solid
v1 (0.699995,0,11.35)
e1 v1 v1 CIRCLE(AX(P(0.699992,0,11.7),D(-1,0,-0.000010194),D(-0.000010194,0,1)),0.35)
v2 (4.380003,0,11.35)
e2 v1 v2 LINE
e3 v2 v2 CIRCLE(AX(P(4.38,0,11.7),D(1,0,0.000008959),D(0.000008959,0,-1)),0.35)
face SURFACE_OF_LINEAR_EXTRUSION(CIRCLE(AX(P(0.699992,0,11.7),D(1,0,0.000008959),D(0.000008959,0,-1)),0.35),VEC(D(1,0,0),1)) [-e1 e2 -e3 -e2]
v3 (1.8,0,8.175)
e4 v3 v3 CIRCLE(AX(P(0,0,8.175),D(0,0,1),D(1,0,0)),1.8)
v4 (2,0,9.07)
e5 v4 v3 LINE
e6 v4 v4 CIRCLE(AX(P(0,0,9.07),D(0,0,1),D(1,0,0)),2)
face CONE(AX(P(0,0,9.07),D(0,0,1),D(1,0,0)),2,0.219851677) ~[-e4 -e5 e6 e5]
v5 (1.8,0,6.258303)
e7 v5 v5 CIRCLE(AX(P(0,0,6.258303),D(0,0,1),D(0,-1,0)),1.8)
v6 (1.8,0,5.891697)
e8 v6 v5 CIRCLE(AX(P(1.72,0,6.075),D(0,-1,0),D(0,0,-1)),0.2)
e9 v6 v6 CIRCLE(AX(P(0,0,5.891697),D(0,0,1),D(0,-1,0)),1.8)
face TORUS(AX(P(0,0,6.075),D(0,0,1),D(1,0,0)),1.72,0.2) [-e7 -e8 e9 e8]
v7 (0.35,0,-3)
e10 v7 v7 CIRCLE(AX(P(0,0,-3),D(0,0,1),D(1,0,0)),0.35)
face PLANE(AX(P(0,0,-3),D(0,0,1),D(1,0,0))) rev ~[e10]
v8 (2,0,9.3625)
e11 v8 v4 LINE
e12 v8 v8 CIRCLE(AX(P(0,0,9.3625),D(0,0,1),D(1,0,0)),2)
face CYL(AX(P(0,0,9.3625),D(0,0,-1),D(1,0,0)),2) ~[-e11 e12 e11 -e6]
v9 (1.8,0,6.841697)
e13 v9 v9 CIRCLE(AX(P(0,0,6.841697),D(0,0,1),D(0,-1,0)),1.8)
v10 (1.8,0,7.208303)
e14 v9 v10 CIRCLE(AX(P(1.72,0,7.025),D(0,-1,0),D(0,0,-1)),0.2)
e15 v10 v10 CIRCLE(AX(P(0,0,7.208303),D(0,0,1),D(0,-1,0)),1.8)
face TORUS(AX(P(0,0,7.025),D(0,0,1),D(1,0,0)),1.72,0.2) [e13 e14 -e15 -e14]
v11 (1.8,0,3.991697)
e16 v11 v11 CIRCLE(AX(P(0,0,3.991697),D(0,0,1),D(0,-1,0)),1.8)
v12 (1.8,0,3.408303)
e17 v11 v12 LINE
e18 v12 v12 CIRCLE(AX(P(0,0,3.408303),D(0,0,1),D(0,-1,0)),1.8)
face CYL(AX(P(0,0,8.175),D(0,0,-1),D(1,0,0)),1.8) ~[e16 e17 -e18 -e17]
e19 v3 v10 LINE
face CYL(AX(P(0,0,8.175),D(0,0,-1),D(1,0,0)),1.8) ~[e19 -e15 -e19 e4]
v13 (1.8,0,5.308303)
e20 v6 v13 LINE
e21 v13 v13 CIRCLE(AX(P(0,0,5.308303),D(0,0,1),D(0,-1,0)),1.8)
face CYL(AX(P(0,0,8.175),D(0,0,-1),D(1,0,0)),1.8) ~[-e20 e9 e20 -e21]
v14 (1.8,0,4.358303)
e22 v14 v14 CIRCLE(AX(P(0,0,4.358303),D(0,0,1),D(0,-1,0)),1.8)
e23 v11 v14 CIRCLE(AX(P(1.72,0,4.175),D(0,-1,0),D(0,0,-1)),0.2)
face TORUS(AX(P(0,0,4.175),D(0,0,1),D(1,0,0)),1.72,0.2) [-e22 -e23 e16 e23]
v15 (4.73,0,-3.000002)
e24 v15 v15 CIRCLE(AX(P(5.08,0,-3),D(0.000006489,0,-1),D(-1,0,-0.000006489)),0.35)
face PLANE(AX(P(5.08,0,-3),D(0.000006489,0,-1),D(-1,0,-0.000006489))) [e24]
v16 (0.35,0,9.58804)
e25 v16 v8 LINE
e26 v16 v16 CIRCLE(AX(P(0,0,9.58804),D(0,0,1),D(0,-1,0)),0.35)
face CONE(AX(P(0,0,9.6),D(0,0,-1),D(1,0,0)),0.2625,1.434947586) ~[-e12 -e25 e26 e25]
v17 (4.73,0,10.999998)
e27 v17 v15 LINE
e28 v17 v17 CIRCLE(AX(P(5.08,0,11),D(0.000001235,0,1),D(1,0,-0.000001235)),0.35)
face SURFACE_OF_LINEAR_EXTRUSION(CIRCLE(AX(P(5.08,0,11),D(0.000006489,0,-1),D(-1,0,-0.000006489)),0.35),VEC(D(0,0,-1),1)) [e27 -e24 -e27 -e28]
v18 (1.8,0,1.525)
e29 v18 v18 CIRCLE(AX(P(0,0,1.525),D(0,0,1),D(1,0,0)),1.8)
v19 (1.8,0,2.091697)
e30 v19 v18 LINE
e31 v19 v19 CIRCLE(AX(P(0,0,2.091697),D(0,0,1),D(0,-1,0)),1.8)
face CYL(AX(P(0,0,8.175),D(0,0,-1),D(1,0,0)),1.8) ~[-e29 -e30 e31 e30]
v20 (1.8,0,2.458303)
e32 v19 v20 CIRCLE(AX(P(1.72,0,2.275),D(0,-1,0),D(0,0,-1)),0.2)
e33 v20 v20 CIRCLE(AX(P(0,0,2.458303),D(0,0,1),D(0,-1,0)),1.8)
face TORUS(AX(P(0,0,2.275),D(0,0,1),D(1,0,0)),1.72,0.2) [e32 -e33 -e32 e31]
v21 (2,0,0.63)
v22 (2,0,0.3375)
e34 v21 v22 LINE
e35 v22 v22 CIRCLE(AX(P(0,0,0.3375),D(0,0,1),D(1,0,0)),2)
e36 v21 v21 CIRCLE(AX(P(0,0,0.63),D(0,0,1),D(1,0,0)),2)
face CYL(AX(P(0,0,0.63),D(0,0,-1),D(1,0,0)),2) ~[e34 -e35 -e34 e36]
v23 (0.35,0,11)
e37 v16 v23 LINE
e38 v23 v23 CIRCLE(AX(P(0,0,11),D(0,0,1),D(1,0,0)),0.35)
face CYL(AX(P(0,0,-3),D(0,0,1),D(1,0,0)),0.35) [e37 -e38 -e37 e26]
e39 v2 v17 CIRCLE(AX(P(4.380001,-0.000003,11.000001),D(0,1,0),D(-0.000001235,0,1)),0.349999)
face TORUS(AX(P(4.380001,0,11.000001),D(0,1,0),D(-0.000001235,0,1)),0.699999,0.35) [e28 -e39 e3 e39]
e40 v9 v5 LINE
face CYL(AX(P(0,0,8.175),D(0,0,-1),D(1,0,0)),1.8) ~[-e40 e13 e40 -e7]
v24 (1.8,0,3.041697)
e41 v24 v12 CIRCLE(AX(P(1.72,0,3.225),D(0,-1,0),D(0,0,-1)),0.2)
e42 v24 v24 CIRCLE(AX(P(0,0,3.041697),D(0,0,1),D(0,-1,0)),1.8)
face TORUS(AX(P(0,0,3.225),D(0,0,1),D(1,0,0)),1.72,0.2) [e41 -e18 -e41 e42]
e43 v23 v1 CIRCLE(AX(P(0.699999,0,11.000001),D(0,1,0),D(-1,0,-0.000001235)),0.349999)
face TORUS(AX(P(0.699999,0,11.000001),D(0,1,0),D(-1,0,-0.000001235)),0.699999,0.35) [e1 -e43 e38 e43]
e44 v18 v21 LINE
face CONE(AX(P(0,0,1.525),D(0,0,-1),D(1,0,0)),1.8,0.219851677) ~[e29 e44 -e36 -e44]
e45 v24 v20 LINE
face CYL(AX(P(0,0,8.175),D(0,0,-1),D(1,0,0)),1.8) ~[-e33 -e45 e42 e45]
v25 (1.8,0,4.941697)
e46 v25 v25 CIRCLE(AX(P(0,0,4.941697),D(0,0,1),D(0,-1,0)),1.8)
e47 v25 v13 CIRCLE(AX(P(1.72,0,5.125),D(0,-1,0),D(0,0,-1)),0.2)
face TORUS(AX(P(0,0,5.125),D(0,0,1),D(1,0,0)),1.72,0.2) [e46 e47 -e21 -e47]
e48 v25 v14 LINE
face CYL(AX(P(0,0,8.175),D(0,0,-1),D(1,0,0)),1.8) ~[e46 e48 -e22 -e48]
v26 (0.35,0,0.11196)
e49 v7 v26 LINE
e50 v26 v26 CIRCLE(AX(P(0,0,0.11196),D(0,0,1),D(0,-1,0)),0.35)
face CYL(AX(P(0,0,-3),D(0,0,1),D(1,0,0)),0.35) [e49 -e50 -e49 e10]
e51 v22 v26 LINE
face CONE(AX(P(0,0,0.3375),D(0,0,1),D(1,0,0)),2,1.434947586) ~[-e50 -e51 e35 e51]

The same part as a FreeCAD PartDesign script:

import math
import FreeCAD as App
import Part
import Sketcher

V = App.Vector

doc = App.newDocument("Part")
params = doc.addObject("Spreadsheet::Sheet", "Params")
for row, (alias, value) in enumerate([
    ("sketch1_height", "9.5 mm"),
    ("sketch1_height2", "6.65 mm"),
    ("revolution_angle", "360 deg"),
    ("sketch2_radius", "0.2 mm"),
    ("sketch2_width", "0.12 mm"),
    ("sketch2_height", "6.25 mm"),
    ("revolution2_angle", "360 deg"),
    ("sketch3_diameter", "0.7 mm"),
    ("sketch4_radius", "0.699999 mm"),
    ("sketch4_height", "14 mm"),
], start=1):
    params.set(f"A{row}", alias)
    params.set(f"B{row}", "=" + value)
    params.setAlias(f"B{row}", alias)

body = doc.addObject("PartDesign::Body", "Body")

# Sketch on XZ plane
sketch1 = body.newObject("Sketcher::SketchObject", "Sketch")
sketch1.AttachmentSupport = (doc.getObject("XZ_Plane"), [""])
sketch1.MapMode = "FlatFace"
sketch1.addGeometry([
    Part.LineSegment(V(0, 9.6, 0), V(0, 0.1, 0)),  # 0
    Part.LineSegment(V(0, 0.1, 0), V(0.26, 0.1, 0)),  # 1
    Part.LineSegment(V(0.26, 0.1, 0), V(2, 0.34, 0)),  # 2
    Part.LineSegment(V(2, 0.34, 0), V(2, 0.63, 0)),  # 3
    Part.LineSegment(V(2, 0.63, 0), V(1.8, 1.52, 0)),  # 4
    Part.LineSegment(V(1.8, 1.52, 0), V(1.8, 8.18, 0)),  # 5
    Part.LineSegment(V(1.8, 8.18, 0), V(2, 9.07, 0)),  # 6
    Part.LineSegment(V(2, 9.07, 0), V(2, 9.36, 0)),  # 7
    Part.LineSegment(V(2, 9.36, 0), V(0.26, 9.6, 0)),  # 8
    Part.LineSegment(V(0.26, 9.6, 0), V(0, 9.6, 0)),  # 9
], False)
sketch1.addConstraint([
    Sketcher.Constraint("Coincident", 0, 2, 1, 1),
    Sketcher.Constraint("Coincident", 1, 2, 2, 1),
    Sketcher.Constraint("Coincident", 2, 2, 3, 1),
    Sketcher.Constraint("Coincident", 3, 2, 4, 1),
    Sketcher.Constraint("Coincident", 4, 2, 5, 1),
    Sketcher.Constraint("Coincident", 5, 2, 6, 1),
    Sketcher.Constraint("Coincident", 6, 2, 7, 1),
    Sketcher.Constraint("Coincident", 7, 2, 8, 1),
    Sketcher.Constraint("Coincident", 8, 2, 9, 1),
    Sketcher.Constraint("Coincident", 9, 2, 0, 1),
    Sketcher.Constraint("Vertical", 0),
    Sketcher.Constraint("Horizontal", 1),
    Sketcher.Constraint("Vertical", 3),
    Sketcher.Constraint("Vertical", 5),
    Sketcher.Constraint("Vertical", 7),
    Sketcher.Constraint("Horizontal", 9),
    Sketcher.Constraint("PointOnObject", 0, 2, -2),
    Sketcher.Constraint("Vertical", 3, 2, 6, 2),
    Sketcher.Constraint("Vertical", 1, 2, 8, 2),
    Sketcher.Constraint("Equal", 3, 7),
    Sketcher.Constraint("Equal", 4, 6),
    Sketcher.Constraint("Equal", 2, 8),
    Sketcher.Constraint("DistanceY", 0, 2, 0, 1, 9.5),
    Sketcher.Constraint("DistanceX", -1, 1, 2, 2, 2.0),
    Sketcher.Constraint("DistanceY", 5, 1, 5, 2, 6.65),
    Sketcher.Constraint("DistanceY", -1, 1, 0, 2, 0.1),
    Sketcher.Constraint("DistanceX", -1, 1, 4, 2, 1.8),
    Sketcher.Constraint("DistanceY", -1, 1, 3, 2, 0.63),
    Sketcher.Constraint("DistanceX", 1, 1, 1, 2, 0.2625),
    Sketcher.Constraint("DistanceY", 3, 1, 3, 2, 0.2925),
])
sketch1.setExpression("Constraints[22]", "Params.sketch1_height")
sketch1.setExpression("Constraints[24]", "Params.sketch1_height2")
revolution = body.newObject("PartDesign::Revolution", "Revolution")
revolution.Profile = sketch1
revolution.ReferenceAxis = (sketch1, ["V_Axis"])
revolution.setExpression("Angle", "Params.revolution_angle")
body2 = doc.addObject("PartDesign::Body", "Body001")

# Sketch on XZ plane
sketch2 = body2.newObject("Sketcher::SketchObject", "Sketch001")
sketch2.AttachmentSupport = (doc.getObject("XZ_Plane001"), [""])
sketch2.MapMode = "FlatFace"
sketch2.addGeometry([
    Part.LineSegment(V(1.6, 7.78, 0), V(1.6, 1.52, 0)),  # 0
    Part.LineSegment(V(1.6, 1.52, 0), V(1.72, 1.52, 0)),  # 1
    Part.LineSegment(V(1.72, 1.52, 0), V(1.72, 2.08, 0)),  # 2
    Part.ArcOfCircle(Part.Circle(V(1.72, 2.27, 0), V(0, 0, 1), 0.2), math.radians(-90), math.radians(90)),  # 3
    Part.LineSegment(V(1.72, 2.48, 0), V(1.72, 3.02, 0)),  # 4
    Part.ArcOfCircle(Part.Circle(V(1.72, 3.23, 0), V(0, 0, 1), 0.2), math.radians(-90), math.radians(90)),  # 5
    Part.LineSegment(V(1.72, 3.42, 0), V(1.72, 3.98, 0)),  # 6
    Part.ArcOfCircle(Part.Circle(V(1.72, 4.17, 0), V(0, 0, 1), 0.2), math.radians(-90), math.radians(90)),  # 7
    Part.LineSegment(V(1.72, 4.38, 0), V(1.72, 4.92, 0)),  # 8
    Part.ArcOfCircle(Part.Circle(V(1.72, 5.12, 0), V(0, 0, 1), 0.2), math.radians(-90), math.radians(90)),  # 9
    Part.LineSegment(V(1.72, 5.33, 0), V(1.72, 5.88, 0)),  # 10
    Part.ArcOfCircle(Part.Circle(V(1.72, 6.08, 0), V(0, 0, 1), 0.2), math.radians(-90), math.radians(90)),  # 11
    Part.LineSegment(V(1.72, 6.28, 0), V(1.72, 6.83, 0)),  # 12
    Part.ArcOfCircle(Part.Circle(V(1.72, 7.03, 0), V(0, 0, 1), 0.2), math.radians(-90), math.radians(90)),  # 13
    Part.LineSegment(V(1.72, 7.22, 0), V(1.72, 7.78, 0)),  # 14
    Part.LineSegment(V(1.72, 7.78, 0), V(1.6, 7.78, 0)),  # 15
], False)
sketch2.addConstraint([
    Sketcher.Constraint("Coincident", 0, 2, 1, 1),
    Sketcher.Constraint("Coincident", 1, 2, 2, 1),
    Sketcher.Constraint("Coincident", 2, 2, 3, 1),
    Sketcher.Constraint("Coincident", 3, 2, 4, 1),
    Sketcher.Constraint("Coincident", 4, 2, 5, 1),
    Sketcher.Constraint("Coincident", 5, 2, 6, 1),
    Sketcher.Constraint("Coincident", 6, 2, 7, 1),
    Sketcher.Constraint("Coincident", 7, 2, 8, 1),
    Sketcher.Constraint("Coincident", 8, 2, 9, 1),
    Sketcher.Constraint("Coincident", 9, 2, 10, 1),
    Sketcher.Constraint("Coincident", 10, 2, 11, 1),
    Sketcher.Constraint("Coincident", 11, 2, 12, 1),
    Sketcher.Constraint("Coincident", 12, 2, 13, 1),
    Sketcher.Constraint("Coincident", 13, 2, 14, 1),
    Sketcher.Constraint("Coincident", 14, 2, 15, 1),
    Sketcher.Constraint("Coincident", 15, 2, 0, 1),
    Sketcher.Constraint("Vertical", 0),
    Sketcher.Constraint("Horizontal", 1),
    Sketcher.Constraint("Vertical", 2),
    Sketcher.Constraint("Vertical", 4),
    Sketcher.Constraint("Vertical", 6),
    Sketcher.Constraint("Vertical", 8),
    Sketcher.Constraint("Vertical", 10),
    Sketcher.Constraint("Vertical", 12),
    Sketcher.Constraint("Vertical", 14),
    Sketcher.Constraint("Horizontal", 15),
    Sketcher.Constraint("Equal", 3, 5),
    Sketcher.Constraint("Equal", 5, 7),
    Sketcher.Constraint("Equal", 7, 9),
    Sketcher.Constraint("Equal", 9, 11),
    Sketcher.Constraint("Equal", 11, 13),
    Sketcher.Constraint("Vertical", 3, 3, 5, 3),
    Sketcher.Constraint("Vertical", 5, 3, 7, 3),
    Sketcher.Constraint("Vertical", 7, 3, 9, 3),
    Sketcher.Constraint("Vertical", 9, 3, 11, 3),
    Sketcher.Constraint("Vertical", 11, 3, 13, 3),
    Sketcher.Constraint("Vertical", 13, 3, 1, 2),
    Sketcher.Constraint("Vertical", 2, 2, 3, 2),
    Sketcher.Constraint("Vertical", 4, 2, 5, 2),
    Sketcher.Constraint("Vertical", 6, 2, 7, 2),
    Sketcher.Constraint("Vertical", 8, 2, 9, 2),
    Sketcher.Constraint("Vertical", 10, 2, 11, 2),
    Sketcher.Constraint("Vertical", 12, 2, 13, 2),
    Sketcher.Constraint("Equal", 2, 4),
    Sketcher.Constraint("Equal", 4, 6),
    Sketcher.Constraint("Equal", 6, 8),
    Sketcher.Constraint("Equal", 8, 10),
    Sketcher.Constraint("Equal", 10, 12),
    Sketcher.Constraint("Equal", 12, 14),
    Sketcher.Constraint("Radius", 3, 0.2),
    Sketcher.Constraint("DistanceX", 1, 1, 1, 2, 0.12),
    Sketcher.Constraint("DistanceY", 0, 2, 0, 1, 6.25),
    Sketcher.Constraint("DistanceX", -1, 1, 0, 2, 1.6),
    Sketcher.Constraint("DistanceY", -1, 1, 3, 3, 2.275),
])
sketch2.setExpression("Constraints[49]", "Params.sketch2_radius")
sketch2.setExpression("Constraints[50]", "Params.sketch2_width")
sketch2.setExpression("Constraints[51]", "Params.sketch2_height")
revolution2 = body2.newObject("PartDesign::Revolution", "Revolution001")
revolution2.Profile = sketch2
revolution2.ReferenceAxis = (sketch2, ["V_Axis"])
revolution2.setExpression("Angle", "Params.revolution2_angle")
body3 = doc.addObject("PartDesign::Body", "Body002")

# Sketch on XY plane
sketch3 = body3.newObject("Sketcher::SketchObject", "Sketch002")
sketch3.AttachmentSupport = (doc.getObject("XY_Plane002"), [""])
sketch3.MapMode = "FlatFace"
sketch3.AttachmentOffset = App.Placement(V(0, 0, -2), App.Rotation())
sketch3.addGeometry(Part.Circle(V(0, 0, 0), V(0, 0, 1), 0.35), False)
sketch3.addConstraint([
    Sketcher.Constraint("Coincident", 0, 3, -1, 1),
    Sketcher.Constraint("Diameter", 0, 0.7),
])
sketch3.setExpression("Constraints[1]", "Params.sketch3_diameter")

# Sketch on XZ plane
sketch4 = body3.newObject("Sketcher::SketchObject", "Sketch003")
sketch4.AttachmentSupport = (doc.getObject("XZ_Plane002"), [""])
sketch4.MapMode = "FlatFace"
sketch4.addGeometry([
    Part.LineSegment(V(0, -3, 0), V(0, 11, 0)),  # 0
    Part.ArcOfCircle(Part.Circle(V(0.7, 11, 0), V(0, 0, 1), 0.7), math.radians(90), math.radians(180)),  # 1
    Part.LineSegment(V(0.7, 11.7, 0), V(4.4, 11.7, 0)),  # 2
    Part.ArcOfCircle(Part.Circle(V(4.4, 11, 0), V(0, 0, 1), 0.7), math.radians(0), math.radians(90)),  # 3
    Part.LineSegment(V(5.1, 11, 0), V(5.1, -3, 0)),  # 4
], False)
sketch4.addConstraint([
    Sketcher.Constraint("Tangent", 0, 2, 1, 2),
    Sketcher.Constraint("Coincident", 1, 1, 2, 1),
    Sketcher.Constraint("Tangent", 2, 2, 3, 2),
    Sketcher.Constraint("Tangent", 3, 1, 4, 1),
    Sketcher.Constraint("Vertical", 0),
    Sketcher.Constraint("Horizontal", 2),
    Sketcher.Constraint("Vertical", 4),
    Sketcher.Constraint("Equal", 1, 3),
    Sketcher.Constraint("PointOnObject", 0, 1, -2),
    Sketcher.Constraint("Horizontal", 0, 1, 4, 2),
    Sketcher.Constraint("Radius", 1, 0.699999),
    Sketcher.Constraint("DistanceY", 0, 1, 0, 2, 14.0),
    Sketcher.Constraint("DistanceY", -1, 1, 1, 3, 11.000001),
    Sketcher.Constraint("DistanceX", -1, 1, 3, 3, 4.380001),
    Sketcher.Constraint("DistanceX", 2, 1, 2, 2, 3.680008),
])
sketch4.setExpression("Constraints[10]", "Params.sketch4_radius")
sketch4.setExpression("Constraints[11]", "Params.sketch4_height")
doc.recompute()

additivepipe = body3.newObject("PartDesign::AdditivePipe", "AdditivePipe")
additivepipe.Profile = sketch3
additivepipe.Spine = (sketch4, ["Edge1", "Edge2", "Edge3", "Edge4", "Edge5"])
doc.recompute()

boolean = body3.newObject("PartDesign::Boolean", "Boolean")
boolean.Type = "Fuse"
boolean.addObjects([body])
doc.recompute()

boolean2 = body3.newObject("PartDesign::Boolean", "Boolean001")
boolean2.Type = "Fuse"
boolean2.addObjects([body2])

doc.recompute()
